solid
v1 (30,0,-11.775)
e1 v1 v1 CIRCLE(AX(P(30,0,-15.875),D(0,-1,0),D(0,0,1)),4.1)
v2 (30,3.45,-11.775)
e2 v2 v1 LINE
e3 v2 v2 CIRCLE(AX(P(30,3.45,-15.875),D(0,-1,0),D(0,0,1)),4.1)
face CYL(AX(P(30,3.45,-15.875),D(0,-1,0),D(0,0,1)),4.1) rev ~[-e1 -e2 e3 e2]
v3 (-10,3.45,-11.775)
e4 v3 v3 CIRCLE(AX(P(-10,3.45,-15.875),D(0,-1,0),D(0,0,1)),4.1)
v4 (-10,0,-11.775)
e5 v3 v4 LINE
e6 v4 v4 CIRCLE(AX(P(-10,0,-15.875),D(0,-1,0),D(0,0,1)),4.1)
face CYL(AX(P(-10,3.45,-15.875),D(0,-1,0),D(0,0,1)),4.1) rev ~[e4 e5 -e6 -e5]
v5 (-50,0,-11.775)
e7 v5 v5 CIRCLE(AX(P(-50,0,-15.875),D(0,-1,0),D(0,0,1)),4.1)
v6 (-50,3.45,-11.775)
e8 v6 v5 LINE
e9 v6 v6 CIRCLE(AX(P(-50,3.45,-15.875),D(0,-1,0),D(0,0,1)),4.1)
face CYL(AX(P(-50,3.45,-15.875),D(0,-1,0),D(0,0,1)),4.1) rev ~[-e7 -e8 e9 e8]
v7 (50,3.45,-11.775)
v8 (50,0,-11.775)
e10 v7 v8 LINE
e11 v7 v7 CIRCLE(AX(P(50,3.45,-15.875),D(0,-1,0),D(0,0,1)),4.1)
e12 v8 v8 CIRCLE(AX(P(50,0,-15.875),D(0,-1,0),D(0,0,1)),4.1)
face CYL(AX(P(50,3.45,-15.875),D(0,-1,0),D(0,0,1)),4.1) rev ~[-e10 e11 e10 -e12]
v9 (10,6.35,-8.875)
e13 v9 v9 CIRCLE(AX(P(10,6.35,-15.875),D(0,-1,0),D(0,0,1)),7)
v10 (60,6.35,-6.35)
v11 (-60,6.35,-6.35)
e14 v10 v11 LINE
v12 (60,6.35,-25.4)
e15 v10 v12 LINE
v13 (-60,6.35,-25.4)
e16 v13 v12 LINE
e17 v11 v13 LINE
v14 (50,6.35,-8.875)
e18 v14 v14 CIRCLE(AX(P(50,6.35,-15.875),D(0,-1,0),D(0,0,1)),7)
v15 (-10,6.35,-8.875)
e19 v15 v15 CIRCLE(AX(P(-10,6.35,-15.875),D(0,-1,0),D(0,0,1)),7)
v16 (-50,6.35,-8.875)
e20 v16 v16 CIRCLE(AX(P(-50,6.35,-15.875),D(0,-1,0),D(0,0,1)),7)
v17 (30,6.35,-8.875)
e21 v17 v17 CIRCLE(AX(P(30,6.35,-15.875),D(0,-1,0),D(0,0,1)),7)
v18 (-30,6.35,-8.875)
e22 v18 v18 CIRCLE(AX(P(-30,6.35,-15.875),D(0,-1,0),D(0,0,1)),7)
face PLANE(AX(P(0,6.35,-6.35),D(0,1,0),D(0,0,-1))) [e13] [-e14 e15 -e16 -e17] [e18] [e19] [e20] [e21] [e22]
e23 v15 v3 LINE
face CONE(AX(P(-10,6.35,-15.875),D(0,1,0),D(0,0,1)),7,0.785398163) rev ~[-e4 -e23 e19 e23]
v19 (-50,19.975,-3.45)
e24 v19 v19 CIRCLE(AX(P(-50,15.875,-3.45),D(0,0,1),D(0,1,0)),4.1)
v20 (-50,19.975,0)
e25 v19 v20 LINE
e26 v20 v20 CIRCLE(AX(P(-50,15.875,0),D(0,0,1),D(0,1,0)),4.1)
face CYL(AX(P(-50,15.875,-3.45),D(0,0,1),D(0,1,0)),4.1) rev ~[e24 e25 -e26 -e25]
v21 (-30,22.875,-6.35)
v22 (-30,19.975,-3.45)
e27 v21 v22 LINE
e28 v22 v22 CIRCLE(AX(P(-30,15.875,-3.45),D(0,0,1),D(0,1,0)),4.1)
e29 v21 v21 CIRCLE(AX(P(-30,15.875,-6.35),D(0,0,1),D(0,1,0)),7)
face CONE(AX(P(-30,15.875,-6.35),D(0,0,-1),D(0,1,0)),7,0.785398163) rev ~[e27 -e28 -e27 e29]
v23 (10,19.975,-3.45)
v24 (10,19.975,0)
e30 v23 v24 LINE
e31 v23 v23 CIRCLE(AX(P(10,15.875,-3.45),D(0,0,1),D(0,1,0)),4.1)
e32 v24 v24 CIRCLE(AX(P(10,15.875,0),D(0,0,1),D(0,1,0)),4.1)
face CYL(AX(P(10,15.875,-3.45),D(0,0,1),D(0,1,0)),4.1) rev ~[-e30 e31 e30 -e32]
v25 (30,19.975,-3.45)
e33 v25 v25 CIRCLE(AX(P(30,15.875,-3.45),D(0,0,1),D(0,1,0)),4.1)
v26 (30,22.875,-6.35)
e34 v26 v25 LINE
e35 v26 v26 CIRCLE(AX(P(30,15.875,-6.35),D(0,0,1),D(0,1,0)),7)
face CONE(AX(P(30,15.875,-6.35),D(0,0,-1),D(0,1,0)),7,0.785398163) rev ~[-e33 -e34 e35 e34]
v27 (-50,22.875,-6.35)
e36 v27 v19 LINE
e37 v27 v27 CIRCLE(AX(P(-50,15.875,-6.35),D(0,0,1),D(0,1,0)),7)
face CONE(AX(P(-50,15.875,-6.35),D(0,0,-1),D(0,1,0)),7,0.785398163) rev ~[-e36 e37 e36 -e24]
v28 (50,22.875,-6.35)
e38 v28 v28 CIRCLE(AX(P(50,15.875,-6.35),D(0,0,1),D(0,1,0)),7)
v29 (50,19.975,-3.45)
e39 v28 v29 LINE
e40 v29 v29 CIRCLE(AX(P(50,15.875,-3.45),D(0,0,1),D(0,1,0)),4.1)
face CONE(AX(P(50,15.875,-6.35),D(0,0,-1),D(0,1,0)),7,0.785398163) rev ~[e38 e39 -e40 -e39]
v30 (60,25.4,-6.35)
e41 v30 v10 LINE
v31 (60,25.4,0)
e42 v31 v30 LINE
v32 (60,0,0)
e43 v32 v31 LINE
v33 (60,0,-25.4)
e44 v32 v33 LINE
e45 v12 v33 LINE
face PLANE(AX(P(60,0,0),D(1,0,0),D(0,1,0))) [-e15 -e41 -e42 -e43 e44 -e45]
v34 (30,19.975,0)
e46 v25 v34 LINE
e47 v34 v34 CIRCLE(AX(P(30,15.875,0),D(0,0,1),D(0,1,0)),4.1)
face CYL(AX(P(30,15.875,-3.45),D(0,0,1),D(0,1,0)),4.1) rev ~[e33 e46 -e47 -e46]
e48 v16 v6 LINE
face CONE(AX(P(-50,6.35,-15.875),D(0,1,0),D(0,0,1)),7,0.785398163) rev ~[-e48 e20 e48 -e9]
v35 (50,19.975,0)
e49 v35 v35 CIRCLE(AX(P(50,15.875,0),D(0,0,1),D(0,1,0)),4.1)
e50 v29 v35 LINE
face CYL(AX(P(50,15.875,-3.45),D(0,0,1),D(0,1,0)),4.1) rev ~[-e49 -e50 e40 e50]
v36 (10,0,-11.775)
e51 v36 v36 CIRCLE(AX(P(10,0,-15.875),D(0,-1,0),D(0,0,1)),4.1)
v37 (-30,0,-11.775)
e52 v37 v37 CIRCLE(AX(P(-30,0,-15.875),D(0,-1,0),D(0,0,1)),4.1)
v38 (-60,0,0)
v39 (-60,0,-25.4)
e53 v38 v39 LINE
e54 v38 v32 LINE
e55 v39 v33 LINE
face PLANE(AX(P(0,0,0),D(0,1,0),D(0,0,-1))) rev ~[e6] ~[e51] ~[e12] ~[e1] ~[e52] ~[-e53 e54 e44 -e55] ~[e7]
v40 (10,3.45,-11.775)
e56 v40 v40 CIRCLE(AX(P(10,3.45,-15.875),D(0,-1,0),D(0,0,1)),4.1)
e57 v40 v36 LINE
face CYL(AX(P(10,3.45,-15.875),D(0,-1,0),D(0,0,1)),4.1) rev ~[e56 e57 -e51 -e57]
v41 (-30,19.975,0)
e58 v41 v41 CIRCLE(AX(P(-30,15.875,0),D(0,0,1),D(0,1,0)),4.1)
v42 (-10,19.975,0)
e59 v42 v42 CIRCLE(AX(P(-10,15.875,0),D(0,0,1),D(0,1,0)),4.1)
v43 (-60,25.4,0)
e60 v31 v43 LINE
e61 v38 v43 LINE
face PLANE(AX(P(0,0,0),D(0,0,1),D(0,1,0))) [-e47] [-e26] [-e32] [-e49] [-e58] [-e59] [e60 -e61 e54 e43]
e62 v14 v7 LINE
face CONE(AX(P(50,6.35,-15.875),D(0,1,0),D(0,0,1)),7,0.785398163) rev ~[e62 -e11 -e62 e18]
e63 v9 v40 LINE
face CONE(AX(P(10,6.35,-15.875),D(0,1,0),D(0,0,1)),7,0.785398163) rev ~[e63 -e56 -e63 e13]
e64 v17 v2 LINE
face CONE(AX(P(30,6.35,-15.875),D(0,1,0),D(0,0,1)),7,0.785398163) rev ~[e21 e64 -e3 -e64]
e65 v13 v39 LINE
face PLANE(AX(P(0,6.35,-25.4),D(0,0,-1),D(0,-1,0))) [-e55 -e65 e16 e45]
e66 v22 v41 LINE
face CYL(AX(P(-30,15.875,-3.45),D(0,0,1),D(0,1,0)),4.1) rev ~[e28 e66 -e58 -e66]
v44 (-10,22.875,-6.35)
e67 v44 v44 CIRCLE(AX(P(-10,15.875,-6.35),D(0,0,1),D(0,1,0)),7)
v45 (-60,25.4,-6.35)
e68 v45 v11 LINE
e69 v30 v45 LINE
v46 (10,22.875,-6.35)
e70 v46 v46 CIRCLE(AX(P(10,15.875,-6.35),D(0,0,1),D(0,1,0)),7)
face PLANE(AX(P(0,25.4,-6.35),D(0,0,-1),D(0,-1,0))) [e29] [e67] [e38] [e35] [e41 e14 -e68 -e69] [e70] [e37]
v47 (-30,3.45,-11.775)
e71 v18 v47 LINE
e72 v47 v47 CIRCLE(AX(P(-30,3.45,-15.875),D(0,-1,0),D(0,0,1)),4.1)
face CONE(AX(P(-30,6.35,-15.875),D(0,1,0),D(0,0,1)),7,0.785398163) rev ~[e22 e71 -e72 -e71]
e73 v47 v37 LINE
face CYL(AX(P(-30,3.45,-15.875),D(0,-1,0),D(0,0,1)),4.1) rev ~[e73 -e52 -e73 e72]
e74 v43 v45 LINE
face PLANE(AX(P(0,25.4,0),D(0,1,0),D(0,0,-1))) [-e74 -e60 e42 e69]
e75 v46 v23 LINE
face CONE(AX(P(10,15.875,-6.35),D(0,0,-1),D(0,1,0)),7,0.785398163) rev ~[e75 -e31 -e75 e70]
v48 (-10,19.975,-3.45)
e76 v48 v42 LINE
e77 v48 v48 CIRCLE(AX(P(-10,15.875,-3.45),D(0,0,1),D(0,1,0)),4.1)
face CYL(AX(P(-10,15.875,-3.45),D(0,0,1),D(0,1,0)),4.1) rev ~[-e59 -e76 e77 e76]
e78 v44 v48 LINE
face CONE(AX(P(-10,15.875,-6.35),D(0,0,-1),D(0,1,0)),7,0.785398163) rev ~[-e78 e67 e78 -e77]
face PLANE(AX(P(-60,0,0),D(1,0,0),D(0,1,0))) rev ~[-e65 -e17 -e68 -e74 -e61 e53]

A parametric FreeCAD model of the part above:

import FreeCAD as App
import Part
import Sketcher

V = App.Vector
Q = App.Units.Quantity

doc = App.newDocument("Part")
body = doc.addObject("PartDesign::Body", "Body")

# Sketch on YZ plane
sketch1 = doc.addObject("Sketcher::SketchObject", "Sketch")
body.addObject(sketch1)
sketch1.AttachmentSupport = (doc.YZ_Plane, [""])
sketch1.MapMode = "FlatFace"
sketch1.addGeometry([
    Part.LineSegment(V(25, 0, 0), V(0, 0, 0)),  # 0
    Part.LineSegment(V(0, 0, 0), V(0, -25, 0)),  # 1
    Part.LineSegment(V(0, -25, 0), V(6, -25, 0)),  # 2
    Part.LineSegment(V(6, -25, 0), V(6, -6, 0)),  # 3
    Part.LineSegment(V(6, -6, 0), V(25, -6, 0)),  # 4
    Part.LineSegment(V(25, -6, 0), V(25, 0, 0)),  # 5
], False)
sketch1.addConstraint([
    Sketcher.Constraint("Coincident", 0, 2, 1, 1),
    Sketcher.Constraint("Coincident", 1, 2, 2, 1),
    Sketcher.Constraint("Coincident", 2, 2, 3, 1),
    Sketcher.Constraint("Coincident", 3, 2, 4, 1),
    Sketcher.Constraint("Coincident", 4, 2, 5, 1),
    Sketcher.Constraint("Coincident", 5, 2, 0, 1),
    Sketcher.Constraint("Horizontal", 0),
    Sketcher.Constraint("Vertical", 1),
    Sketcher.Constraint("Horizontal", 2),
    Sketcher.Constraint("Vertical", 3),
    Sketcher.Constraint("Horizontal", 4),
    Sketcher.Constraint("Vertical", 5),
    Sketcher.Constraint("Coincident", 0, 2, -1, 1),
    Sketcher.Constraint("Equal", 0, 1),
    Sketcher.Constraint("Equal", 4, 3),
    Sketcher.Constraint("DistanceX", 0, 2, 0, 1, Q("1 in")),
    Sketcher.Constraint("DistanceX", 2, 1, 2, 2, Q("0.25 in")),
])
pad1 = doc.addObject("PartDesign::Pad", "Pad")
body.addObject(pad1)
pad1.Profile = sketch1
pad1.Length = Q("4.7244094 in")
pad1.Midplane = True

# Sketch on XZ plane
sketch2 = doc.addObject("Sketcher::SketchObject", "Sketch001")
body.addObject(sketch2)
sketch2.AttachmentSupport = (doc.XZ_Plane, [""])
sketch2.MapMode = "FlatFace"
sketch2.AttachmentOffset = App.Placement(V(0, 0, -0.25 * 25.4), App.Rotation())
sketch2.addGeometry([
    Part.Circle(V(50, -15.9, 0), V(0, 0, 1), 4.1),  # 0
    Part.Circle(V(30, -15.9, 0), V(0, 0, 1), 4.1),  # 1
    Part.Circle(V(10, -15.9, 0), V(0, 0, 1), 4.1),  # 2
    Part.Circle(V(-10, -15.9, 0), V(0, 0, 1), 4.1),  # 3
    Part.Circle(V(-30, -15.9, 0), V(0, 0, 1), 4.1),  # 4
    Part.Circle(V(-50, -15.9, 0), V(0, 0, 1), 4.1),  # 5
], False)
sketch2.addConstraint([
    Sketcher.Constraint("Equal", 0, 1),
    Sketcher.Constraint("Equal", 1, 2),
    Sketcher.Constraint("Equal", 2, 3),
    Sketcher.Constraint("Equal", 3, 4),
    Sketcher.Constraint("Equal", 4, 5),
    Sketcher.Constraint("Symmetric", 2, 3, 3, 3, -2),
    Sketcher.Constraint("Symmetric", 1, 3, 4, 3, -2),
    Sketcher.Constraint("Symmetric", 0, 3, 5, 3, -2),
    Sketcher.Constraint("Horizontal", 0, 3, 1, 3),
    Sketcher.Constraint("Horizontal", 1, 3, 2, 3),
    Sketcher.Constraint("Diameter", 0, Q("8.2 mm")),
    Sketcher.Constraint("DistanceY", 0, 3, -1, 1, Q("0.625 in")),
    Sketcher.Constraint("DistanceX", 5, 3, 0, 3, Q("3.937 in")),
    Sketcher.Constraint("DistanceX", -1, 1, 1, 3, Q("1.1811 in")),
    Sketcher.Constraint("DistanceX", -1, 1, 2, 3, Q("0.3937 in")),
])
doc.recompute()
hole = doc.addObject("PartDesign::Hole", "Hole")
body.addObject(hole)
hole.Profile = sketch2
hole.ThreadType = "None"
hole.Diameter = 8.2
hole.DepthType = "ThroughAll"
hole.HoleCutType = "Countersink"
hole.HoleCutDiameter = 14
hole.HoleCutCountersinkAngle = 90
hole.Reversed = True

# Sketch on XY plane
sketch3 = doc.addObject("Sketcher::SketchObject", "Sketch002")
body.addObject(sketch3)
sketch3.AttachmentSupport = (doc.XY_Plane, [""])
sketch3.MapMode = "FlatFace"
sketch3.AttachmentOffset = App.Placement(V(0, 0, -0.25 * 25.4), App.Rotation())
sketch3.addGeometry([
    Part.Circle(V(50, 15.9, 0), V(0, 0, 1), 4.1),  # 0
    Part.Circle(V(30, 15.9, 0), V(0, 0, 1), 4.1),  # 1
    Part.Circle(V(10, 15.9, 0), V(0, 0, 1), 4.1),  # 2
    Part.Circle(V(-10, 15.9, 0), V(0, 0, 1), 4.1),  # 3
    Part.Circle(V(-30, 15.9, 0), V(0, 0, 1), 4.1),  # 4
    Part.Circle(V(-50, 15.9, 0), V(0, 0, 1), 4.1),  # 5
], False)
sketch3.addConstraint([
    Sketcher.Constraint("Equal", 0, 1),
    Sketcher.Constraint("Equal", 1, 2),
    Sketcher.Constraint("Equal", 2, 3),
    Sketcher.Constraint("Equal", 3, 4),
    Sketcher.Constraint("Equal", 4, 5),
    Sketcher.Constraint("Symmetric", 2, 3, 3, 3, -2),
    Sketcher.Constraint("Symmetric", 1, 3, 4, 3, -2),
    Sketcher.Constraint("Symmetric", 0, 3, 5, 3, -2),
    Sketcher.Constraint("Horizontal", 0, 3, 1, 3),
    Sketcher.Constraint("Horizontal", 1, 3, 2, 3),
    Sketcher.Constraint("Diameter", 0, Q("8.2 mm")),
    Sketcher.Constraint("DistanceY", -1, 1, 0, 3, Q("0.625 in")),
    Sketcher.Constraint("DistanceX", 5, 3, 0, 3, Q("3.937 in")),
    Sketcher.Constraint("DistanceX", -1, 1, 1, 3, Q("1.1811 in")),
    Sketcher.Constraint("DistanceX", -1, 1, 2, 3, Q("0.3937 in")),
])
doc.recompute()
hole2 = doc.addObject("PartDesign::Hole", "Hole001")
body.addObject(hole2)
hole2.Profile = sketch3
hole2.ThreadType = "None"
hole2.Diameter = 8.2
hole2.DepthType = "ThroughAll"
hole2.HoleCutType = "Countersink"
hole2.HoleCutDiameter = 14
hole2.HoleCutCountersinkAngle = 90
hole2.Reversed = True

doc.recompute()
